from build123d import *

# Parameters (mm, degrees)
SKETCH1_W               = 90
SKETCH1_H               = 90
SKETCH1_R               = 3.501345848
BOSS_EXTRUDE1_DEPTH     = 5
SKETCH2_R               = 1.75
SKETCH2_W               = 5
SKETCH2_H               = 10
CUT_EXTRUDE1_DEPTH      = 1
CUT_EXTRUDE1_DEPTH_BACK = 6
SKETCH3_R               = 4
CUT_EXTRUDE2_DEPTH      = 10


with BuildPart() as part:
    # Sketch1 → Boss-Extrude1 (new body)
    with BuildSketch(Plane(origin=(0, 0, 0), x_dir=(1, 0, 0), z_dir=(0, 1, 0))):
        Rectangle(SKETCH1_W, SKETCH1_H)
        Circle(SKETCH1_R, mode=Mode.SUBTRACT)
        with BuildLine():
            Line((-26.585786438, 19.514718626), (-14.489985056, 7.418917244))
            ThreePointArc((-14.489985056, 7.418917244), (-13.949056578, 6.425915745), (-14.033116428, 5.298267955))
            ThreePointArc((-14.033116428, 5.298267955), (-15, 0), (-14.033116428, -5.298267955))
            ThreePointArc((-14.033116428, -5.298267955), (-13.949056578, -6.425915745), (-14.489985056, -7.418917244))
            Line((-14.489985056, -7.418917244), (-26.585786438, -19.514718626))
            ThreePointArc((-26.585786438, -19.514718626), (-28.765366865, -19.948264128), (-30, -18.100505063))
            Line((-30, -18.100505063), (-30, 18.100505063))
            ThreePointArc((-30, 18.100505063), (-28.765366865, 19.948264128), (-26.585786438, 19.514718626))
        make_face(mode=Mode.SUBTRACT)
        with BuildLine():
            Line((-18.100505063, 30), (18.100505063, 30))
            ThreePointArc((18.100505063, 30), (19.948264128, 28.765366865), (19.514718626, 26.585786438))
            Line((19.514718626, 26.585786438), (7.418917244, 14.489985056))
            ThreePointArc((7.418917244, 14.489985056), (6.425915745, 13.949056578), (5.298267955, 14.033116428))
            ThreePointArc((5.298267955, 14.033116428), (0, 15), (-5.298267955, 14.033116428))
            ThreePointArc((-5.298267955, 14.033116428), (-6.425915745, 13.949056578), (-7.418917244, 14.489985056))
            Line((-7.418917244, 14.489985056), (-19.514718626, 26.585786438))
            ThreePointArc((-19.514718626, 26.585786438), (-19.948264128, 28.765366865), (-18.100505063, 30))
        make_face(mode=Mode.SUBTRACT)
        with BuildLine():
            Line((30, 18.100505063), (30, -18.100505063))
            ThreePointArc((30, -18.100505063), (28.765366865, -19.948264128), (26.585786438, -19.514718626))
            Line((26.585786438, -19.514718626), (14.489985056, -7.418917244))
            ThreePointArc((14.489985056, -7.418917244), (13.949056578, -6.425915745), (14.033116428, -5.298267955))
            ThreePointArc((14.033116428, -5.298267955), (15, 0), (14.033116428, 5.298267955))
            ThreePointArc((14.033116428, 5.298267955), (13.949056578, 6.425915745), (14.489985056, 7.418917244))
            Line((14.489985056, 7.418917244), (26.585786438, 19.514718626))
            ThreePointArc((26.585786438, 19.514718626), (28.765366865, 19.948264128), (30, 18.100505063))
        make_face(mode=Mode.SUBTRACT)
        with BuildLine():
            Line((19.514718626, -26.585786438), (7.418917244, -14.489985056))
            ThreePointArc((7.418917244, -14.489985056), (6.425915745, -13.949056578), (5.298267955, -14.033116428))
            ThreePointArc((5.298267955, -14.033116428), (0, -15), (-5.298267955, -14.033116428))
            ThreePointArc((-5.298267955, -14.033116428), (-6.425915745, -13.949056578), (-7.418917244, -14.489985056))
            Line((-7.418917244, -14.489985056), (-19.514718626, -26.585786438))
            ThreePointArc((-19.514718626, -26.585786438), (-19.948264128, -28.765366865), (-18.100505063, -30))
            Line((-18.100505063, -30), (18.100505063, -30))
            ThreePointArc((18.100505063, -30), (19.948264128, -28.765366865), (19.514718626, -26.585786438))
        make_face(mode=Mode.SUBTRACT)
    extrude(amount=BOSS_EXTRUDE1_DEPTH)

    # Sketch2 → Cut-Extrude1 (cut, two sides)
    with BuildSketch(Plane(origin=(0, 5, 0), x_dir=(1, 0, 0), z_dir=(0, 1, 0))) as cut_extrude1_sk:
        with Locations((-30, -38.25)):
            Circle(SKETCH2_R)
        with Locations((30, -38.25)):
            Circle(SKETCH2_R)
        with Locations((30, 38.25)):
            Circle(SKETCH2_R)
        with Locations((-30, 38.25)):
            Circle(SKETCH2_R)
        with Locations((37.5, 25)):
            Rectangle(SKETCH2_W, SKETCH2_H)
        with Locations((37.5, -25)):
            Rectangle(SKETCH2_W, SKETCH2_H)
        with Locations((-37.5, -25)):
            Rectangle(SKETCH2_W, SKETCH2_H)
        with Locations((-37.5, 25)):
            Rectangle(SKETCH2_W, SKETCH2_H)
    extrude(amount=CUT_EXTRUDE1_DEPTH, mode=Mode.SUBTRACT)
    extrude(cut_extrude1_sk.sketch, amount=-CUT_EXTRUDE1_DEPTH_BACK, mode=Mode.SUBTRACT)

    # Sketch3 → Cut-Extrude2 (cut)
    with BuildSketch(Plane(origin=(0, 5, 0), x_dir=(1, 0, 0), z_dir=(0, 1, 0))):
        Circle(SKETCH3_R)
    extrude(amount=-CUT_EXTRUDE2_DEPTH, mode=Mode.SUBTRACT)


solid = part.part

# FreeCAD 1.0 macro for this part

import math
import FreeCAD as App
import Part
import Sketcher


def add_polygon(sketch, points):
    """Adds a closed chain of lines whose ends are joined by coincident constraints."""
    first, n = sketch.GeometryCount, len(points)
    for a, b in zip(points, points[1:] + points[:1]):
        sketch.addGeometry(Part.LineSegment(App.Vector(*a, 0), App.Vector(*b, 0)), False)
    for i in range(n):
        sketch.addConstraint(Sketcher.Constraint("Coincident", first + i, 2, first + (i + 1) % n, 1))

doc = App.newDocument("Part")
body = doc.addObject("PartDesign::Body", "Body")

sketch1 = body.newObject("Sketcher::SketchObject", "Sketch")
sketch1.AttachmentSupport = (doc.getObject("XZ_Plane"), [""])
sketch1.MapMode = "FlatFace"
add_polygon(sketch1, [(-45, -45), (-45, 45), (45, 45), (45, -45)])
sketch1.addGeometry(Part.LineSegment(App.Vector(7.4, 14.5, 0), App.Vector(19.5, 26.6, 0)), False)
sketch1.addGeometry(Part.ArcOfCircle(Part.Circle(App.Vector(18.1, 28, 0), App.Vector(0, 0, 1), 2), math.radians(-45), math.radians(90)), False)
sketch1.addGeometry(Part.LineSegment(App.Vector(18.1, 30, 0), App.Vector(-18.1, 30, 0)), False)
sketch1.addGeometry(Part.ArcOfCircle(Part.Circle(App.Vector(-18.1, 28, 0), App.Vector(0, 0, 1), 2), math.radians(90), math.radians(225)), False)
sketch1.addGeometry(Part.LineSegment(App.Vector(-19.5, 26.6, 0), App.Vector(-7.4, 14.5, 0)), False)
sketch1.addGeometry(Part.ArcOfCircle(Part.Circle(App.Vector(-6, 15.9, 0), App.Vector(0, 0, 1), 2), math.radians(-135), math.radians(-69)), False)
sketch1.addGeometry(Part.ArcOfCircle(Part.Circle(App.Vector(0, 0, 0), App.Vector(0, 0, 1), 15), math.radians(69), math.radians(111)), False)
sketch1.addGeometry(Part.ArcOfCircle(Part.Circle(App.Vector(6, 15.9, 0), App.Vector(0, 0, 1), 2), math.radians(-111), math.radians(-45)), False)
sketch1.addGeometry(Part.ArcOfCircle(Part.Circle(App.Vector(-28, -18.1, 0), App.Vector(0, 0, 1), 2), math.radians(180), math.radians(315)), False)
sketch1.addGeometry(Part.LineSegment(App.Vector(-26.6, -19.5, 0), App.Vector(-14.5, -7.4, 0)), False)
sketch1.addGeometry(Part.ArcOfCircle(Part.Circle(App.Vector(-15.9, -6, 0), App.Vector(0, 0, 1), 2), math.radians(-45), math.radians(21)), False)
sketch1.addGeometry(Part.ArcOfCircle(Part.Circle(App.Vector(0, 0, 0), App.Vector(0, 0, 1), 15), math.radians(159), math.radians(201)), False)
sketch1.addGeometry(Part.ArcOfCircle(Part.Circle(App.Vector(-15.9, 6, 0), App.Vector(0, 0, 1), 2), math.radians(-21), math.radians(45)), False)
sketch1.addGeometry(Part.LineSegment(App.Vector(-14.5, 7.4, 0), App.Vector(-26.6, 19.5, 0)), False)
sketch1.addGeometry(Part.ArcOfCircle(Part.Circle(App.Vector(-28, 18.1, 0), App.Vector(0, 0, 1), 2), math.radians(45), math.radians(180)), False)
sketch1.addGeometry(Part.LineSegment(App.Vector(-30, 18.1, 0), App.Vector(-30, -18.1, 0)), False)
sketch1.addGeometry(Part.Circle(App.Vector(0, 0, 0), App.Vector(0, 0, 1), 3.5), False)
sketch1.addGeometry(Part.ArcOfCircle(Part.Circle(App.Vector(28, -18.1, 0), App.Vector(0, 0, 1), 2), math.radians(-135), math.radians(0)), False)
sketch1.addGeometry(Part.LineSegment(App.Vector(30, -18.1, 0), App.Vector(30, 18.1, 0)), False)
sketch1.addGeometry(Part.ArcOfCircle(Part.Circle(App.Vector(28, 18.1, 0), App.Vector(0, 0, 1), 2), math.radians(0), math.radians(135)), False)
sketch1.addGeometry(Part.LineSegment(App.Vector(26.6, 19.5, 0), App.Vector(14.5, 7.4, 0)), False)
sketch1.addGeometry(Part.ArcOfCircle(Part.Circle(App.Vector(15.9, 6, 0), App.Vector(0, 0, 1), 2), math.radians(135), math.radians(201)), False)
sketch1.addGeometry(Part.ArcOfCircle(Part.Circle(App.Vector(0, 0, 0), App.Vector(0, 0, 1), 15), math.radians(-21), math.radians(21)), False)
sketch1.addGeometry(Part.ArcOfCircle(Part.Circle(App.Vector(15.9, -6, 0), App.Vector(0, 0, 1), 2), math.radians(159), math.radians(225)), False)
sketch1.addGeometry(Part.LineSegment(App.Vector(14.5, -7.4, 0), App.Vector(26.6, -19.5, 0)), False)
sketch1.addGeometry(Part.ArcOfCircle(Part.Circle(App.Vector(-18.1, -28, 0), App.Vector(0, 0, 1), 2), math.radians(135), math.radians(270)), False)
sketch1.addGeometry(Part.LineSegment(App.Vector(-18.1, -30, 0), App.Vector(18.1, -30, 0)), False)
sketch1.addGeometry(Part.ArcOfCircle(Part.Circle(App.Vector(18.1, -28, 0), App.Vector(0, 0, 1), 2), math.radians(-90), math.radians(45)), False)
sketch1.addGeometry(Part.LineSegment(App.Vector(19.5, -26.6, 0), App.Vector(7.4, -14.5, 0)), False)
sketch1.addGeometry(Part.ArcOfCircle(Part.Circle(App.Vector(6, -15.9, 0), App.Vector(0, 0, 1), 2), math.radians(45), math.radians(111)), False)
sketch1.addGeometry(Part.ArcOfCircle(Part.Circle(App.Vector(0, 0, 0), App.Vector(0, 0, 1), 15), math.radians(-111), math.radians(-69)), False)
sketch1.addGeometry(Part.ArcOfCircle(Part.Circle(App.Vector(-6, -15.9, 0), App.Vector(0, 0, 1), 2), math.radians(69), math.radians(135)), False)
sketch1.addGeometry(Part.LineSegment(App.Vector(-7.4, -14.5, 0), App.Vector(-19.5, -26.6, 0)), False)
sketch1.addConstraint(Sketcher.Constraint("Tangent", 4, 2, 5, 1))
sketch1.addConstraint(Sketcher.Constraint("Tangent", 5, 2, 6, 1))
sketch1.addConstraint(Sketcher.Constraint("Tangent", 6, 2, 7, 1))
sketch1.addConstraint(Sketcher.Constraint("Tangent", 7, 2, 8, 1))
sketch1.addConstraint(Sketcher.Constraint("Tangent", 8, 2, 9, 1))
sketch1.addConstraint(Sketcher.Constraint("Tangent", 9, 2, 10, 2))
sketch1.addConstraint(Sketcher.Constraint("Tangent", 10, 1, 11, 1))
sketch1.addConstraint(Sketcher.Constraint("Tangent", 11, 2, 4, 1))
sketch1.addConstraint(Sketcher.Constraint("Tangent", 12, 2, 13, 1))
sketch1.addConstraint(Sketcher.Constraint("Tangent", 13, 2, 14, 1))
sketch1.addConstraint(Sketcher.Constraint("Tangent", 14, 2, 15, 2))
sketch1.addConstraint(Sketcher.Constraint("Tangent", 15, 1, 16, 1))
sketch1.addConstraint(Sketcher.Constraint("Tangent", 16, 2, 17, 1))
sketch1.addConstraint(Sketcher.Constraint("Tangent", 17, 2, 18, 1))
sketch1.addConstraint(Sketcher.Constraint("Tangent", 18, 2, 19, 1))
sketch1.addConstraint(Sketcher.Constraint("Tangent", 19, 2, 12, 1))
sketch1.addConstraint(Sketcher.Constraint("Tangent", 21, 2, 22, 1))
sketch1.addConstraint(Sketcher.Constraint("Tangent", 22, 2, 23, 1))
sketch1.addConstraint(Sketcher.Constraint("Tangent", 23, 2, 24, 1))
sketch1.addConstraint(Sketcher.Constraint("Tangent", 24, 2, 25, 1))
sketch1.addConstraint(Sketcher.Constraint("Tangent", 25, 2, 26, 2))
sketch1.addConstraint(Sketcher.Constraint("Tangent", 26, 1, 27, 1))
sketch1.addConstraint(Sketcher.Constraint("Tangent", 27, 2, 28, 1))
sketch1.addConstraint(Sketcher.Constraint("Tangent", 28, 2, 21, 1))
sketch1.addConstraint(Sketcher.Constraint("Tangent", 29, 2, 30, 1))
sketch1.addConstraint(Sketcher.Constraint("Tangent", 30, 2, 31, 1))
sketch1.addConstraint(Sketcher.Constraint("Tangent", 31, 2, 32, 1))
sketch1.addConstraint(Sketcher.Constraint("Tangent", 32, 2, 33, 1))
sketch1.addConstraint(Sketcher.Constraint("Tangent", 33, 2, 34, 2))
sketch1.addConstraint(Sketcher.Constraint("Tangent", 34, 1, 35, 1))
sketch1.addConstraint(Sketcher.Constraint("Tangent", 35, 2, 36, 1))
sketch1.addConstraint(Sketcher.Constraint("Tangent", 36, 2, 29, 1))
sketch1.addConstraint(Sketcher.Constraint("Vertical", 0))
sketch1.addConstraint(Sketcher.Constraint("Horizontal", 1))
sketch1.addConstraint(Sketcher.Constraint("Vertical", 2))
sketch1.addConstraint(Sketcher.Constraint("Horizontal", 3))
sketch1.addConstraint(Sketcher.Constraint("Horizontal", 6))
sketch1.addConstraint(Sketcher.Constraint("Vertical", 19))
sketch1.addConstraint(Sketcher.Constraint("Vertical", 22))
sketch1.addConstraint(Sketcher.Constraint("Horizontal", 30))
sketch1.addConstraint(Sketcher.Constraint("Coincident", 10, 3, -1, 1))
sketch1.addConstraint(Sketcher.Constraint("Coincident", 15, 3, -1, 1))
sketch1.addConstraint(Sketcher.Constraint("Coincident", 20, 3, -1, 1))
sketch1.addConstraint(Sketcher.Constraint("Coincident", 26, 3, -1, 1))
sketch1.addConstraint(Sketcher.Constraint("Coincident", 34, 3, -1, 1))
sketch1.addConstraint(Sketcher.Constraint("Equal", 5, 7))
sketch1.addConstraint(Sketcher.Constraint("Equal", 7, 9))
sketch1.addConstraint(Sketcher.Constraint("Equal", 9, 11))
sketch1.addConstraint(Sketcher.Constraint("Equal", 11, 12))
sketch1.addConstraint(Sketcher.Constraint("Equal", 12, 14))
sketch1.addConstraint(Sketcher.Constraint("Equal", 10, 15))
sketch1.addConstraint(Sketcher.Constraint("Equal", 14, 16))
sketch1.addConstraint(Sketcher.Constraint("Equal", 16, 18))
sketch1.addConstraint(Sketcher.Constraint("Equal", 18, 21))
sketch1.addConstraint(Sketcher.Constraint("Equal", 21, 23))
sketch1.addConstraint(Sketcher.Constraint("Equal", 23, 25))
sketch1.addConstraint(Sketcher.Constraint("Equal", 15, 26))
sketch1.addConstraint(Sketcher.Constraint("Equal", 25, 27))
sketch1.addConstraint(Sketcher.Constraint("Equal", 27, 29))
sketch1.addConstraint(Sketcher.Constraint("Equal", 29, 31))
sketch1.addConstraint(Sketcher.Constraint("Equal", 31, 33))
sketch1.addConstraint(Sketcher.Constraint("Equal", 26, 34))
sketch1.addConstraint(Sketcher.Constraint("Equal", 33, 35))
sketch1.addConstraint(Sketcher.Constraint("Symmetric", 18, 3, 21, 3, -1, 1))
sketch1.addConstraint(Sketcher.Constraint("Symmetric", 5, 3, 29, 3, -1, 1))
sketch1.addConstraint(Sketcher.Constraint("Symmetric", 0, 2, 2, 2, -1, 1))
sketch1.addConstraint(Sketcher.Constraint("Symmetric", 12, 2, 23, 2, -1, 1))
sketch1.addConstraint(Sketcher.Constraint("Symmetric", 7, 2, 31, 2, -1, 1))
sketch1.addConstraint(Sketcher.Constraint("Symmetric", 4, 2, 7, 2, -2))
sketch1.addConstraint(Sketcher.Constraint("Symmetric", 17, 2, 23, 2, -2))
sketch1.addConstraint(Sketcher.Constraint("Perpendicular", 4, 8))
sketch1.addConstraint(Sketcher.Constraint("Perpendicular", 8, 13))
sketch1.addConstraint(Sketcher.Constraint("Perpendicular", 24, 28))
sketch1.addConstraint(Sketcher.Constraint("Perpendicular", 32, 36))
sketch1.addConstraint(Sketcher.Constraint("Equal", 3, 0))
sketch1.addConstraint(Sketcher.Constraint("Equal", 30, 19))
sketch1.addConstraint(Sketcher.Constraint("Equal", 8, 13))
sketch1.addConstraint(Sketcher.Constraint("Radius", 5, 2.0))
sketch1.addConstraint(Sketcher.Constraint("Radius", 10, 15.0))
sketch1.addConstraint(Sketcher.Constraint("DistanceX", 1, 1, 1, 2, 90.0))
sketch1.addConstraint(Sketcher.Constraint("DistanceY", -1, 1, 5, 3, 28.0))
sketch1.addConstraint(Sketcher.Constraint("Diameter", 20, 7.002692))
sketch1.addConstraint(Sketcher.Constraint("DistanceX", 6, 2, 6, 1, 36.20101))
pad1 = body.newObject("PartDesign::Pad", "Pad")
pad1.Profile = sketch1
pad1.Length = 5
pad1.Reversed = True

sketch2 = body.newObject("Sketcher::SketchObject", "Sketch001")
sketch2.AttachmentSupport = (doc.getObject("XZ_Plane"), [""])
sketch2.MapMode = "FlatFace"
sketch2.AttachmentOffset = App.Placement(App.Vector(0, 0, -5), App.Rotation())
sketch2.addGeometry(Part.Circle(App.Vector(-30, 38.2, 0), App.Vector(0, 0, 1), 1.8), False)
sketch2.addGeometry(Part.Circle(App.Vector(30, 38.2, 0), App.Vector(0, 0, 1), 1.8), False)
sketch2.addGeometry(Part.Circle(App.Vector(30, -38.2, 0), App.Vector(0, 0, 1), 1.8), False)
sketch2.addGeometry(Part.Circle(App.Vector(-30, -38.2, 0), App.Vector(0, 0, 1), 1.8), False)
add_polygon(sketch2, [(35, -30), (35, -20), (40, -20), (40, -30)])
add_polygon(sketch2, [(35, 20), (35, 30), (40, 30), (40, 20)])
add_polygon(sketch2, [(-40, 20), (-40, 30), (-35, 30), (-35, 20)])
add_polygon(sketch2, [(-40, -30), (-40, -20), (-35, -20), (-35, -30)])
sketch2.addConstraint(Sketcher.Constraint("Vertical", 4))
sketch2.addConstraint(Sketcher.Constraint("Horizontal", 5))
sketch2.addConstraint(Sketcher.Constraint("Vertical", 6))
sketch2.addConstraint(Sketcher.Constraint("Horizontal", 7))
sketch2.addConstraint(Sketcher.Constraint("Vertical", 8))
sketch2.addConstraint(Sketcher.Constraint("Horizontal", 9))
sketch2.addConstraint(Sketcher.Constraint("Vertical", 10))
sketch2.addConstraint(Sketcher.Constraint("Horizontal", 11))
sketch2.addConstraint(Sketcher.Constraint("Vertical", 12))
sketch2.addConstraint(Sketcher.Constraint("Horizontal", 13))
sketch2.addConstraint(Sketcher.Constraint("Vertical", 14))
sketch2.addConstraint(Sketcher.Constraint("Horizontal", 15))
sketch2.addConstraint(Sketcher.Constraint("Vertical", 16))
sketch2.addConstraint(Sketcher.Constraint("Horizontal", 17))
sketch2.addConstraint(Sketcher.Constraint("Vertical", 18))
sketch2.addConstraint(Sketcher.Constraint("Horizontal", 19))
sketch2.addConstraint(Sketcher.Constraint("Equal", 0, 1))
sketch2.addConstraint(Sketcher.Constraint("Equal", 1, 2))
sketch2.addConstraint(Sketcher.Constraint("Equal", 2, 3))
sketch2.addConstraint(Sketcher.Constraint("Symmetric", 0, 3, 2, 3, -1, 1))
sketch2.addConstraint(Sketcher.Constraint("Symmetric", 1, 3, 3, 3, -1, 1))
sketch2.addConstraint(Sketcher.Constraint("Symmetric", 6, 2, 12, 2, -1, 1))
sketch2.addConstraint(Sketcher.Constraint("Symmetric", 4, 2, 14, 2, -1, 1))
sketch2.addConstraint(Sketcher.Constraint("Symmetric", 10, 2, 16, 2, -1, 1))
sketch2.addConstraint(Sketcher.Constraint("Symmetric", 8, 2, 18, 2, -1, 1))
sketch2.addConstraint(Sketcher.Constraint("Symmetric", 0, 3, 1, 3, -2))
sketch2.addConstraint(Sketcher.Constraint("Symmetric", 9, 2, 12, 2, -2))
sketch2.addConstraint(Sketcher.Constraint("Symmetric", 11, 2, 14, 2, -2))
sketch2.addConstraint(Sketcher.Constraint("Diameter", 0, 3.5))
sketch2.addConstraint(Sketcher.Constraint("DistanceX", 5, 1, 5, 2, 5.0))
sketch2.addConstraint(Sketcher.Constraint("DistanceY", 4, 1, 4, 2, 10.0))
sketch2.addConstraint(Sketcher.Constraint("DistanceX", 0, 3, -1, 1, 30.0))
sketch2.addConstraint(Sketcher.Constraint("DistanceX", -1, 1, 4, 2, 35.0))
sketch2.addConstraint(Sketcher.Constraint("DistanceY", 4, 2, -1, 1, 20.0))
sketch2.addConstraint(Sketcher.Constraint("DistanceY", 2, 3, 1, 3, 76.5))
pocket1 = body.newObject("PartDesign::Pocket", "Pocket")
pocket1.Profile = sketch2
pocket1.Type = "ThroughAll"
pocket1.Midplane = True

sketch3 = body.newObject("Sketcher::SketchObject", "Sketch002")
sketch3.AttachmentSupport = (doc.getObject("XZ_Plane"), [""])
sketch3.MapMode = "FlatFace"
sketch3.AttachmentOffset = App.Placement(App.Vector(0, 0, -5), App.Rotation())
sketch3.addGeometry(Part.Circle(App.Vector(0, 0, 0), App.Vector(0, 0, 1), 4), False)
sketch3.addConstraint(Sketcher.Constraint("Coincident", 0, 3, -1, 1))
sketch3.addConstraint(Sketcher.Constraint("Diameter", 0, 8.0))
pocket2 = body.newObject("PartDesign::Pocket", "Pocket001")
pocket2.Profile = sketch3
pocket2.Length = 10
pocket2.Reversed = True

doc.recompute()
